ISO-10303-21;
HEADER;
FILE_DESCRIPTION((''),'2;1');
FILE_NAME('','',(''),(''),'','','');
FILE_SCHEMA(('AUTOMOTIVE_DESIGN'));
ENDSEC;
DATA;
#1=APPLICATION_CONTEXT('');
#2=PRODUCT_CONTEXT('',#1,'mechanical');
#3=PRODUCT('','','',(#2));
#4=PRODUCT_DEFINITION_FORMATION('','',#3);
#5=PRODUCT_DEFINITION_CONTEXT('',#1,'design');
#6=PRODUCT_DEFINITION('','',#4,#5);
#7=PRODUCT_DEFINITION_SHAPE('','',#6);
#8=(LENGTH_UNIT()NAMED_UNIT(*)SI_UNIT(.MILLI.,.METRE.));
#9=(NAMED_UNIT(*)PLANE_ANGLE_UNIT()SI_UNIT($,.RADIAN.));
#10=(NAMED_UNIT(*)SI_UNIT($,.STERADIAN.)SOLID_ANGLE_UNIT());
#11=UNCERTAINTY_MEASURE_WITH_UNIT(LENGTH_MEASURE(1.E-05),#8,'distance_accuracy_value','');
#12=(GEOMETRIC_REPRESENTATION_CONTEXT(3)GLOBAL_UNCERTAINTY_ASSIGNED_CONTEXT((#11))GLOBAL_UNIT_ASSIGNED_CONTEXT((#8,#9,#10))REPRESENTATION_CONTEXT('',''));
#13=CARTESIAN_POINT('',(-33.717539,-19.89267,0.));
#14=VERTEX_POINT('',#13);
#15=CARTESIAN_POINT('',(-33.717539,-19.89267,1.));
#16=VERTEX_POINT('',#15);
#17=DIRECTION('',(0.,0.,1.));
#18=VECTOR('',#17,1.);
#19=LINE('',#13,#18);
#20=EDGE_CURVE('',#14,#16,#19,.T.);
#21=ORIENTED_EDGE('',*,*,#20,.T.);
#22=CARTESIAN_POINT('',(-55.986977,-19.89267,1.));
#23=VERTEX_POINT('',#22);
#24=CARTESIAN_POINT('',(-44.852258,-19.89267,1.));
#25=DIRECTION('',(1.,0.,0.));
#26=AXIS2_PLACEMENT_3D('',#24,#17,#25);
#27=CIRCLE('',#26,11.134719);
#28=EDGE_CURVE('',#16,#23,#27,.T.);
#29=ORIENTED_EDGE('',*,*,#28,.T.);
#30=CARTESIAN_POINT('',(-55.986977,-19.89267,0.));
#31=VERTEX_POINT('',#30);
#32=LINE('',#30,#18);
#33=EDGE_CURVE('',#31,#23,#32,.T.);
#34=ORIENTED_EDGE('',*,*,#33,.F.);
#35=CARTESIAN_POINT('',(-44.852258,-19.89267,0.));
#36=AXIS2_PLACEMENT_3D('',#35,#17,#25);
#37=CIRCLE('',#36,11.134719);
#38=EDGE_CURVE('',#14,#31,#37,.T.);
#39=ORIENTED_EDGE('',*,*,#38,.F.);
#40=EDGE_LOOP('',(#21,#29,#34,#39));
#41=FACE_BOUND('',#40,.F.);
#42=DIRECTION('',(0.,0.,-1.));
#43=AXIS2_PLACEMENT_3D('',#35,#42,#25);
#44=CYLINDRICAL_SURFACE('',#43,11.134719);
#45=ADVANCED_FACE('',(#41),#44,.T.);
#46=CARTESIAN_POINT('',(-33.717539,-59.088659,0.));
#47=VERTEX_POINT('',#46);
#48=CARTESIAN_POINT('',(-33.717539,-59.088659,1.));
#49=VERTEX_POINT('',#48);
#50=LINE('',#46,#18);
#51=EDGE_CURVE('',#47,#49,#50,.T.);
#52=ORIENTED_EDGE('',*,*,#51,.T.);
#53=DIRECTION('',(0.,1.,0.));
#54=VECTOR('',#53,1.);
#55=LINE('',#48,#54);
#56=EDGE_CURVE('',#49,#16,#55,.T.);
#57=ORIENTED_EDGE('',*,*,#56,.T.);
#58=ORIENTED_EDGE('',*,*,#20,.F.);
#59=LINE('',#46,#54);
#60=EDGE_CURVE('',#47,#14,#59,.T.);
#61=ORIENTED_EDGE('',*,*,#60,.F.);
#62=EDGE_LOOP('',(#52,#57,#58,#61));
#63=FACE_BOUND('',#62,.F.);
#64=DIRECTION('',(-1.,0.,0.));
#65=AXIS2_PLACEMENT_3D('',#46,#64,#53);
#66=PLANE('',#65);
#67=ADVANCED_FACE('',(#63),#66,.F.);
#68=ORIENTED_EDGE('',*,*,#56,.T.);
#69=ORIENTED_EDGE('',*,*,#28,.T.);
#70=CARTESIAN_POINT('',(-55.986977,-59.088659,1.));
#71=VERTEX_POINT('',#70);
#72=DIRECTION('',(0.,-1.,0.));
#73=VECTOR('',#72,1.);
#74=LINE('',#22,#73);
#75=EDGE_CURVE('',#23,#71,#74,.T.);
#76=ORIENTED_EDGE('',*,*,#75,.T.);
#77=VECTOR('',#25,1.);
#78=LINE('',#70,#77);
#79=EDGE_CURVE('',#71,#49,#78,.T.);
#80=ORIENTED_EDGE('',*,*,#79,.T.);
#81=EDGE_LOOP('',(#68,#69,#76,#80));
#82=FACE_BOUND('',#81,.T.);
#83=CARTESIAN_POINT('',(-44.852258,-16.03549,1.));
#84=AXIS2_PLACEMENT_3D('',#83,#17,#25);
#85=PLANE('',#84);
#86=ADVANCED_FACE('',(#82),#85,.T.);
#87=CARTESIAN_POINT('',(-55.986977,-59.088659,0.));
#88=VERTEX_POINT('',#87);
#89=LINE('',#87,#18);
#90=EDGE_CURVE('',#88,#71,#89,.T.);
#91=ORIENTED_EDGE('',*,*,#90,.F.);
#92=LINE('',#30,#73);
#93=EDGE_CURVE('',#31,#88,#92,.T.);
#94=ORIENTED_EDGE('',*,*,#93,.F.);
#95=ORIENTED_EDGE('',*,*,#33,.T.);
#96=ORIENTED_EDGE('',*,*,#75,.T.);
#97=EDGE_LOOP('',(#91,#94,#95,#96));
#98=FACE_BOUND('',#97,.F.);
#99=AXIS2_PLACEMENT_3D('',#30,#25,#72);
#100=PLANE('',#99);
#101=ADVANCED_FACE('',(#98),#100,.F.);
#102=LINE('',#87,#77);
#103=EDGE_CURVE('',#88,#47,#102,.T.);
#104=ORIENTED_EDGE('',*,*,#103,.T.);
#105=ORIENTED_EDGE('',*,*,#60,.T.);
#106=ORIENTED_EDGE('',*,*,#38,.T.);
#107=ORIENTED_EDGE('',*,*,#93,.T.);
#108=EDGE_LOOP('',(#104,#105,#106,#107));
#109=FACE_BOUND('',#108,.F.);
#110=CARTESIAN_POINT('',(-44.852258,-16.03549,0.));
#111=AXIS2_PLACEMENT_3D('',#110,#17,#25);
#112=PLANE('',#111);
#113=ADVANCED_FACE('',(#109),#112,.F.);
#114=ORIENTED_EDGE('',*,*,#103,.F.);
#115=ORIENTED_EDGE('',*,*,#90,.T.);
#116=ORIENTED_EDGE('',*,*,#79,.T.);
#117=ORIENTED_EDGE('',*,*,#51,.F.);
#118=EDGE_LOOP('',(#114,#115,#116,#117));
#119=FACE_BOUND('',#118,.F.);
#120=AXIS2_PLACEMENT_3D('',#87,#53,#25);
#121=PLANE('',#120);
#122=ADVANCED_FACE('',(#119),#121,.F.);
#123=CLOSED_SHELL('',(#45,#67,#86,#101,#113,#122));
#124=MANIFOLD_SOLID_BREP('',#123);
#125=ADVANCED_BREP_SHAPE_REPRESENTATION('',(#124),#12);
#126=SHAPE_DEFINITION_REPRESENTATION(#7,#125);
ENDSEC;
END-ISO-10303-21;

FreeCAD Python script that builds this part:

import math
import FreeCAD as App
import Part
import Sketcher

V = App.Vector

doc = App.newDocument("Part")
body = doc.addObject("PartDesign::Body", "Body")

# Sketch on XY plane
sketch1 = body.newObject("Sketcher::SketchObject", "Sketch")
sketch1.AttachmentSupport = (doc.getObject("XY_Plane"), [""])
sketch1.MapMode = "FlatFace"
sketch1.addGeometry([
    Part.ArcOfCircle(Part.Circle(V(-45, -20, 0), V(0, 0, 1), 11), math.radians(0), math.radians(180)),
    Part.LineSegment(V(-56, -20, 0), V(-56, -59, 0)),
    Part.LineSegment(V(-56, -59, 0), V(-34, -59, 0)),
    Part.LineSegment(V(-34, -59, 0), V(-34, -20, 0)),
], False)
sketch1.addConstraint([
    Sketcher.Constraint("Tangent", 0, 2, 1, 1),
    Sketcher.Constraint("Coincident", 1, 2, 2, 1),
    Sketcher.Constraint("Coincident", 2, 2, 3, 1),
    Sketcher.Constraint("Tangent", 3, 2, 0, 1),
    Sketcher.Constraint("Vertical", 1),
    Sketcher.Constraint("Horizontal", 2),
    Sketcher.Constraint("Vertical", 3),
    Sketcher.Constraint("Radius", 0, 11.134719),
    Sketcher.Constraint("DistanceY", 1, 2, 1, 1, 39.195988),
    Sketcher.Constraint("DistanceX", 0, 3, -1, 1, 44.852258),
    Sketcher.Constraint("DistanceY", 0, 3, -1, 1, 19.89267),
])
pad1 = body.newObject("PartDesign::Pad", "Pad")
pad1.Profile = sketch1
pad1.Length = 1

doc.recompute()
